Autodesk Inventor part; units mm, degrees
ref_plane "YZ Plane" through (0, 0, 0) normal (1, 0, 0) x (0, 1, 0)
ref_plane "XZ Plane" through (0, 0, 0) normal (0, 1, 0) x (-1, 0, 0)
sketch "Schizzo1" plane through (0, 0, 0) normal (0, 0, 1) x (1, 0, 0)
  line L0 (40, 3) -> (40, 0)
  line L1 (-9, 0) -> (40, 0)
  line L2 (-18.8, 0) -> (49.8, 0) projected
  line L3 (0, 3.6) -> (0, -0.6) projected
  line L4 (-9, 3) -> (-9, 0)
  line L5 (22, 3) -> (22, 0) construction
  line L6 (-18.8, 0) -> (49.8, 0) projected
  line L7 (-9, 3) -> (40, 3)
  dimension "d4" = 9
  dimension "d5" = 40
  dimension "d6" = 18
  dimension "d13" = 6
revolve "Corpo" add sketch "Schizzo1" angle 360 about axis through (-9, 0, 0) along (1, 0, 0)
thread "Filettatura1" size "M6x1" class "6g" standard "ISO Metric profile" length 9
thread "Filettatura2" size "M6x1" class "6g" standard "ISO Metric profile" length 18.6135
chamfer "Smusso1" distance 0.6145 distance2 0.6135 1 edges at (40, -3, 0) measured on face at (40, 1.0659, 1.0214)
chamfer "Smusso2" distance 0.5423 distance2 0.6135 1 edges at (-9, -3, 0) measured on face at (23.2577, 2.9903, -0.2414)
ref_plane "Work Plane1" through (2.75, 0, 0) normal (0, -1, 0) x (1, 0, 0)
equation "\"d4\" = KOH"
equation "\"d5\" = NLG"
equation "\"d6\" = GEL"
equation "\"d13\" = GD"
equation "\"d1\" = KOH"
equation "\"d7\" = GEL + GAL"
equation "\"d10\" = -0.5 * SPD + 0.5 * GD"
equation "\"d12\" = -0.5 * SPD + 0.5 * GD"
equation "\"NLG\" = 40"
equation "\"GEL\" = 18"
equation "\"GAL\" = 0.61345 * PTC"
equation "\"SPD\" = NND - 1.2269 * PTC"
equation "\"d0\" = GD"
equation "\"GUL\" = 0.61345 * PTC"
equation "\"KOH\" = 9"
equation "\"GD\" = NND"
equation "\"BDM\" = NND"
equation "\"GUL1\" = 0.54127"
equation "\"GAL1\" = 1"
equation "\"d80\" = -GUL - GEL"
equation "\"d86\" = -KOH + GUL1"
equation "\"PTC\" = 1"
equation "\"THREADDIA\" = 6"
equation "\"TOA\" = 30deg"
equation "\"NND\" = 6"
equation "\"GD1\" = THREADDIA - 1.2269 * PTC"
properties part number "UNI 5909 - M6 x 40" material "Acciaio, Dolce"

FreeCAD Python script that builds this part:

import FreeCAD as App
import Part
import Sketcher
from FreeCAD import Vector


def edges_at(feature, points):
    """Names of the edges that pass closest to the given points."""
    edges = feature.Shape.Edges
    near = lambda p: min(range(len(edges)), key=lambda i: edges[i].distToShape(Part.Vertex(*p))[0])
    return sorted({f"Edge{near(p) + 1}" for p in points})


def add_polygon(sketch, points):
    """Adds a closed chain of lines whose ends are joined by coincident constraints."""
    first, n = sketch.GeometryCount, len(points)
    for a, b in zip(points, points[1:] + points[:1]):
        sketch.addGeometry(Part.LineSegment(App.Vector(*a, 0), App.Vector(*b, 0)), False)
    for i in range(n):
        sketch.addConstraint(Sketcher.Constraint("Coincident", first + i, 2, first + (i + 1) % n, 1))

doc = App.newDocument("Part")
params = doc.addObject("Spreadsheet::Sheet", "Params")
for row, (alias, value) in enumerate([
    ("sketch1_height", "3 mm"),
    ("revolution_angle", "360 deg"),
    ("chamfer_size", "0.6145 mm"),
    ("chamfer_size2", "0.6135 mm"),
    ("chamfer2_size", "0.5423 mm"),
    ("chamfer2_size2", "0.6135 mm"),
], start=1):
    params.set(f"A{row}", alias)
    params.set(f"B{row}", "=" + value)
    params.setAlias(f"B{row}", alias)

body = doc.addObject("PartDesign::Body", "Body")

sketch1 = body.newObject("Sketcher::SketchObject", "Sketch")
sketch1.AttachmentSupport = (doc.getObject("XY_Plane"), [""])
sketch1.MapMode = "FlatFace"
add_polygon(sketch1, [(40, 0), (40, 3), (-9, 3), (-9, 0)])
sketch1.addConstraint(Sketcher.Constraint("Vertical", 0))
sketch1.addConstraint(Sketcher.Constraint("Horizontal", 1))
sketch1.addConstraint(Sketcher.Constraint("Vertical", 2))
sketch1.addConstraint(Sketcher.Constraint("Horizontal", 3))
sketch1.addConstraint(Sketcher.Constraint("PointOnObject", 2, 2, -1))
sketch1.addConstraint(Sketcher.Constraint("DistanceX", -1, 1, 0, 2, 40.0))
sketch1.addConstraint(Sketcher.Constraint("DistanceX", 1, 2, -1, 1, 9.0))
sketch1.addConstraint(Sketcher.Constraint("DistanceY", 0, 1, 0, 2, 3.0))
sketch1.setExpression("Constraints[11]", "Params.sketch1_height")
revolution = body.newObject("PartDesign::Revolution", "Revolution")
revolution.Profile = sketch1
revolution.ReferenceAxis = (sketch1, ["H_Axis"])
revolution.setExpression("Angle", "Params.revolution_angle")
doc.recompute()

chamfer = body.newObject("PartDesign::Chamfer", "Chamfer")
chamfer.Base = (revolution, edges_at(revolution, [(40, -3, 0)]))
chamfer.ChamferType = "Two distances"
chamfer.setExpression("Size", "Params.chamfer_size")
chamfer.setExpression("Size2", "Params.chamfer_size2")
doc.recompute()

chamfer2 = body.newObject("PartDesign::Chamfer", "Chamfer001")
chamfer2.Base = (chamfer, edges_at(chamfer, [(-9, -3, 0)]))
chamfer2.ChamferType = "Two distances"
chamfer2.setExpression("Size", "Params.chamfer2_size")
chamfer2.setExpression("Size2", "Params.chamfer2_size2")

doc.recompute()
